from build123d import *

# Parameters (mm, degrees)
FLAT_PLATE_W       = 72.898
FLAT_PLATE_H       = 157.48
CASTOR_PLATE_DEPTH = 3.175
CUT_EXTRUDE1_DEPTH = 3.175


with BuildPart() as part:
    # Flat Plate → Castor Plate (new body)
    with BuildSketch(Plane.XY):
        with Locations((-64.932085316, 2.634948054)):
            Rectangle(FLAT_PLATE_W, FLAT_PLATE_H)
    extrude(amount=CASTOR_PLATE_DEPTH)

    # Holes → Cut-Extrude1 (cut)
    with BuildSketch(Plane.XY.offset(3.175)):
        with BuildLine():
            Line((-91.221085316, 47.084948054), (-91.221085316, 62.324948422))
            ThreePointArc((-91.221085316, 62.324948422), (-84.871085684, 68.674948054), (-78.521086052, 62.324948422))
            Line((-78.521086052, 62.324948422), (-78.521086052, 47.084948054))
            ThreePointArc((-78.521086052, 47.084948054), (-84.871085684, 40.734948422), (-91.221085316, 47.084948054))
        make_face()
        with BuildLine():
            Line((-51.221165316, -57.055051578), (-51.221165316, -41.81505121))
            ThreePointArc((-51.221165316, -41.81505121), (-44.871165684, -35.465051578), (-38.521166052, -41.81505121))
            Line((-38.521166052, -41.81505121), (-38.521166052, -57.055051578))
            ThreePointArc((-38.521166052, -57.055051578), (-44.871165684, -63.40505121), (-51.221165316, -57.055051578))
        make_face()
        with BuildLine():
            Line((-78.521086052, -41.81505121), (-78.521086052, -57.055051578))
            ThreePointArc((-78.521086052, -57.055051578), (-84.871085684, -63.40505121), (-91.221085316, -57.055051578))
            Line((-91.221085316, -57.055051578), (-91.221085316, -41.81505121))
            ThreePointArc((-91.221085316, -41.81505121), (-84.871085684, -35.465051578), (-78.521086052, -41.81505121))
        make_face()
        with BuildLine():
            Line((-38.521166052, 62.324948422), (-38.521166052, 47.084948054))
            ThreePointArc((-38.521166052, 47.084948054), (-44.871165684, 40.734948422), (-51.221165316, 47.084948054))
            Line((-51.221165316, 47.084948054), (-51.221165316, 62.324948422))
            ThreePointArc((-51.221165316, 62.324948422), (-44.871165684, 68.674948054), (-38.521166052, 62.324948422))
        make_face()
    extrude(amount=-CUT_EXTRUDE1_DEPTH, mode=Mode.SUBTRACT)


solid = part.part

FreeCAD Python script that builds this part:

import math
import FreeCAD as App
import Part
import Sketcher
Q = App.Units.Quantity

doc = App.newDocument("Part")
body = doc.addObject("PartDesign::Body", "Body")

sketch1 = body.newObject("Sketcher::SketchObject", "Sketch")
sketch1.AttachmentSupport = (doc.getObject("XY_Plane"), [""])
sketch1.MapMode = "FlatFace"
sketch1.addGeometry(Part.LineSegment(App.Vector(-101, 81, 0), App.Vector(-101, -76, 0)), False)
sketch1.addGeometry(Part.LineSegment(App.Vector(-101, -76, 0), App.Vector(-28, -76, 0)), False)
sketch1.addGeometry(Part.LineSegment(App.Vector(-28, -76, 0), App.Vector(-28, 81, 0)), False)
sketch1.addGeometry(Part.LineSegment(App.Vector(-28, 81, 0), App.Vector(-101, 81, 0)), False)
sketch1.addConstraint(Sketcher.Constraint("Coincident", 0, 2, 1, 1))
sketch1.addConstraint(Sketcher.Constraint("Coincident", 1, 2, 2, 1))
sketch1.addConstraint(Sketcher.Constraint("Coincident", 2, 2, 3, 1))
sketch1.addConstraint(Sketcher.Constraint("Coincident", 3, 2, 0, 1))
sketch1.addConstraint(Sketcher.Constraint("Vertical", 0))
sketch1.addConstraint(Sketcher.Constraint("Horizontal", 1))
sketch1.addConstraint(Sketcher.Constraint("Vertical", 2))
sketch1.addConstraint(Sketcher.Constraint("Horizontal", 3))
sketch1.addConstraint(Sketcher.Constraint("DistanceY", 0, 2, 0, 1, Q("6.2 in")))
sketch1.addConstraint(Sketcher.Constraint("DistanceX", 1, 1, 1, 2, Q("2.87 in")))
sketch1.addConstraint(Sketcher.Constraint("DistanceY", 0, 2, -1, 1, Q("76.105052 mm")))
sketch1.addConstraint(Sketcher.Constraint("DistanceX", 0, 2, -1, 1, Q("101.381085 mm")))
pad1 = body.newObject("PartDesign::Pad", "Pad")
pad1.Profile = sketch1
pad1.Length = Q("0.125 in")

sketch2 = body.newObject("Sketcher::SketchObject", "Sketch001")
sketch2.AttachmentSupport = (doc.getObject("XY_Plane"), [""])
sketch2.MapMode = "FlatFace"
sketch2.AttachmentOffset = App.Placement(App.Vector(0, 0, 0.125 * 25.4), App.Rotation())
sketch2.addGeometry(Part.LineSegment(App.Vector(-91, 62, 0), App.Vector(-91, 47, 0)), False)
sketch2.addGeometry(Part.ArcOfCircle(Part.Circle(App.Vector(-85, 47, 0), App.Vector(0, 0, 1), 6), math.radians(180), math.radians(360)), False)
sketch2.addGeometry(Part.LineSegment(App.Vector(-79, 47, 0), App.Vector(-79, 62, 0)), False)
sketch2.addGeometry(Part.ArcOfCircle(Part.Circle(App.Vector(-85, 62, 0), App.Vector(0, 0, 1), 6), math.radians(0), math.radians(180)), False)
sketch2.addGeometry(Part.LineSegment(App.Vector(-51, -42, 0), App.Vector(-51, -57, 0)), False)
sketch2.addGeometry(Part.ArcOfCircle(Part.Circle(App.Vector(-45, -57, 0), App.Vector(0, 0, 1), 6), math.radians(180), math.radians(360)), False)
sketch2.addGeometry(Part.LineSegment(App.Vector(-39, -57, 0), App.Vector(-39, -42, 0)), False)
sketch2.addGeometry(Part.ArcOfCircle(Part.Circle(App.Vector(-45, -42, 0), App.Vector(0, 0, 1), 6), math.radians(0), math.radians(180)), False)
sketch2.addGeometry(Part.LineSegment(App.Vector(-79, -57, 0), App.Vector(-79, -42, 0)), False)
sketch2.addGeometry(Part.ArcOfCircle(Part.Circle(App.Vector(-85, -42, 0), App.Vector(0, 0, 1), 6), math.radians(0), math.radians(180)), False)
sketch2.addGeometry(Part.LineSegment(App.Vector(-91, -42, 0), App.Vector(-91, -57, 0)), False)
sketch2.addGeometry(Part.ArcOfCircle(Part.Circle(App.Vector(-85, -57, 0), App.Vector(0, 0, 1), 6), math.radians(180), math.radians(360)), False)
sketch2.addGeometry(Part.LineSegment(App.Vector(-39, 47, 0), App.Vector(-39, 62, 0)), False)
sketch2.addGeometry(Part.ArcOfCircle(Part.Circle(App.Vector(-45, 62, 0), App.Vector(0, 0, 1), 6), math.radians(0), math.radians(180)), False)
sketch2.addGeometry(Part.LineSegment(App.Vector(-51, 62, 0), App.Vector(-51, 47, 0)), False)
sketch2.addGeometry(Part.ArcOfCircle(Part.Circle(App.Vector(-45, 47, 0), App.Vector(0, 0, 1), 6), math.radians(180), math.radians(360)), False)
sketch2.addConstraint(Sketcher.Constraint("Tangent", 0, 2, 1, 1))
sketch2.addConstraint(Sketcher.Constraint("Tangent", 1, 2, 2, 1))
sketch2.addConstraint(Sketcher.Constraint("Tangent", 2, 2, 3, 1))
sketch2.addConstraint(Sketcher.Constraint("Tangent", 3, 2, 0, 1))
sketch2.addConstraint(Sketcher.Constraint("Tangent", 4, 2, 5, 1))
sketch2.addConstraint(Sketcher.Constraint("Tangent", 5, 2, 6, 1))
sketch2.addConstraint(Sketcher.Constraint("Tangent", 6, 2, 7, 1))
sketch2.addConstraint(Sketcher.Constraint("Tangent", 7, 2, 4, 1))
sketch2.addConstraint(Sketcher.Constraint("Tangent", 8, 2, 9, 1))
sketch2.addConstraint(Sketcher.Constraint("Tangent", 9, 2, 10, 1))
sketch2.addConstraint(Sketcher.Constraint("Tangent", 10, 2, 11, 1))
sketch2.addConstraint(Sketcher.Constraint("Tangent", 11, 2, 8, 1))
sketch2.addConstraint(Sketcher.Constraint("Tangent", 12, 2, 13, 1))
sketch2.addConstraint(Sketcher.Constraint("Tangent", 13, 2, 14, 1))
sketch2.addConstraint(Sketcher.Constraint("Tangent", 14, 2, 15, 1))
sketch2.addConstraint(Sketcher.Constraint("Tangent", 15, 2, 12, 1))
sketch2.addConstraint(Sketcher.Constraint("Vertical", 0))
sketch2.addConstraint(Sketcher.Constraint("Vertical", 2))
sketch2.addConstraint(Sketcher.Constraint("Vertical", 4))
sketch2.addConstraint(Sketcher.Constraint("Vertical", 6))
sketch2.addConstraint(Sketcher.Constraint("Vertical", 8))
sketch2.addConstraint(Sketcher.Constraint("Vertical", 10))
sketch2.addConstraint(Sketcher.Constraint("Vertical", 12))
sketch2.addConstraint(Sketcher.Constraint("Vertical", 14))
sketch2.addConstraint(Sketcher.Constraint("Equal", 3, 5))
sketch2.addConstraint(Sketcher.Constraint("Equal", 7, 9))
sketch2.addConstraint(Sketcher.Constraint("Equal", 11, 13))
sketch2.addConstraint(Sketcher.Constraint("Horizontal", 7, 3, 9, 3))
sketch2.addConstraint(Sketcher.Constraint("Horizontal", 5, 3, 11, 3))
sketch2.addConstraint(Sketcher.Constraint("Horizontal", 3, 3, 13, 3))
sketch2.addConstraint(Sketcher.Constraint("Horizontal", 1, 3, 15, 3))
sketch2.addConstraint(Sketcher.Constraint("Vertical", 3, 3, 9, 3))
sketch2.addConstraint(Sketcher.Constraint("Vertical", 7, 3, 13, 3))
sketch2.addConstraint(Sketcher.Constraint("Equal", 2, 4))
sketch2.addConstraint(Sketcher.Constraint("Radius", 1, Q("0.25 in")))
sketch2.addConstraint(Sketcher.Constraint("DistanceY", 0, 2, 0, 1, Q("0.6 in")))
sketch2.addConstraint(Sketcher.Constraint("DistanceY", 5, 3, 1, 3, Q("4.1 in")))
sketch2.addConstraint(Sketcher.Constraint("DistanceX", 1, 3, 5, 3, Q("1.5748 in")))
sketch2.addConstraint(Sketcher.Constraint("DistanceY", -1, 1, 1, 3, Q("47.084948 mm")))
sketch2.addConstraint(Sketcher.Constraint("DistanceX", 1, 3, -1, 1, Q("84.871086 mm")))
pocket1 = body.newObject("PartDesign::Pocket", "Pocket")
pocket1.Profile = sketch2
pocket1.Length = Q("0.125 in")

doc.recompute()
